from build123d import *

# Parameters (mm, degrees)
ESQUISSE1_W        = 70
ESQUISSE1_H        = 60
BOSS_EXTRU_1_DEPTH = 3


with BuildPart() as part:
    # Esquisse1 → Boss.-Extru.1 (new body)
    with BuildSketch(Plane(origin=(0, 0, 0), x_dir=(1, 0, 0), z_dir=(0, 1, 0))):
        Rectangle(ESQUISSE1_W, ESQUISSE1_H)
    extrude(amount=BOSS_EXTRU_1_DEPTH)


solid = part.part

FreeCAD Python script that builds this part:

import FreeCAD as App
import Part
import Sketcher

V = App.Vector

doc = App.newDocument("Part")
body = doc.addObject("PartDesign::Body", "Body")

sketch1 = body.newObject("Sketcher::SketchObject", "Sketch")
sketch1.AttachmentSupport = (doc.getObject("XZ_Plane"), [""])
sketch1.MapMode = "FlatFace"
sketch1.addGeometry(Part.LineSegment(V(-35, -30, 0), V(-35, 30, 0)), False)
sketch1.addGeometry(Part.LineSegment(V(-35, 30, 0), V(35, 30, 0)), False)
sketch1.addGeometry(Part.LineSegment(V(35, 30, 0), V(35, -30, 0)), False)
sketch1.addGeometry(Part.LineSegment(V(35, -30, 0), V(-35, -30, 0)), False)
sketch1.addConstraint(Sketcher.Constraint("Coincident", 0, 2, 1, 1))
sketch1.addConstraint(Sketcher.Constraint("Coincident", 1, 2, 2, 1))
sketch1.addConstraint(Sketcher.Constraint("Coincident", 2, 2, 3, 1))
sketch1.addConstraint(Sketcher.Constraint("Coincident", 3, 2, 0, 1))
sketch1.addConstraint(Sketcher.Constraint("Vertical", 0))
sketch1.addConstraint(Sketcher.Constraint("Horizontal", 1))
sketch1.addConstraint(Sketcher.Constraint("Vertical", 2))
sketch1.addConstraint(Sketcher.Constraint("Horizontal", 3))
sketch1.addConstraint(Sketcher.Constraint("Symmetric", 0, 2, 2, 2, -1, 1))
sketch1.addConstraint(Sketcher.Constraint("DistanceX", 1, 1, 1, 2, 70.0))
sketch1.addConstraint(Sketcher.Constraint("DistanceY", 0, 1, 0, 2, 60.0))
pad1 = body.newObject("PartDesign::Pad", "Pad")
pad1.Profile = sketch1
pad1.Length = 3
pad1.Reversed = True

doc.recompute()
